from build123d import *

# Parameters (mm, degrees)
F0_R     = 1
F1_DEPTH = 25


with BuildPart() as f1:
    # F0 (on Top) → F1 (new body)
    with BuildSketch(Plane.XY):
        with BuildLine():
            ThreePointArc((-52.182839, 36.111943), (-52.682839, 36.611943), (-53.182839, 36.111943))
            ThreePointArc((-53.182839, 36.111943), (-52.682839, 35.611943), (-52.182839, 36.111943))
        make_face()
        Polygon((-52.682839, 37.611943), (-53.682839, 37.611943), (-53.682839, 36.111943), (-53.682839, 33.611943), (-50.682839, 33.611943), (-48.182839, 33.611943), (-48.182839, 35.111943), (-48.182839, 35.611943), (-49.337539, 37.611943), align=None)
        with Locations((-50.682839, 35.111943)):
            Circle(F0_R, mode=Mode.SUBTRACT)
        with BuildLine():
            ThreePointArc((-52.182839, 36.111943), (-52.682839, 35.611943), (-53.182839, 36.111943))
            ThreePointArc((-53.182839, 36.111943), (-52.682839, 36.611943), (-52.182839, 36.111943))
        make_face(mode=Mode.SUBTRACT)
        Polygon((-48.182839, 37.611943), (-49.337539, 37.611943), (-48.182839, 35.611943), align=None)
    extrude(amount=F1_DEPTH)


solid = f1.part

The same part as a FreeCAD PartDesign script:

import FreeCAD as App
import Part
import Sketcher

V = App.Vector
Q = App.Units.Quantity

doc = App.newDocument("Part")
params = doc.addObject("Spreadsheet::Sheet", "Params")
for row, (alias, value) in enumerate([
    ("sketch1_diameter", "2 mm"),
    ("sketch1_diameter2", "1 mm"),
    ("sketch1_height", "4 mm"),
    ("sketch1_width", "5.5 mm"),
    ("pad1_length", "25 mm"),
], start=1):
    params.set(f"A{row}", alias)
    params.set(f"B{row}", "=" + value)
    params.setAlias(f"B{row}", alias)

body = doc.addObject("PartDesign::Body", "Body")

# Sketch on XY plane
sketch1 = doc.addObject("Sketcher::SketchObject", "Sketch")
body.addObject(sketch1)
sketch1.AttachmentSupport = (doc.XY_Plane, [""])
sketch1.MapMode = "FlatFace"
sketch1.addGeometry([
    Part.LineSegment(V(-53.7, 37.6, 0), V(-53.7, 33.6, 0)),  # 0
    Part.LineSegment(V(-53.7, 33.6, 0), V(-48.2, 33.6, 0)),  # 1
    Part.LineSegment(V(-48.2, 33.6, 0), V(-48.2, 37.6, 0)),  # 2
    Part.LineSegment(V(-48.2, 37.6, 0), V(-53.7, 37.6, 0)),  # 3
    Part.Circle(V(-50.7, 35.1, 0), V(0, 0, 1), 1),  # 4
    Part.Circle(V(-52.7, 36.1, 0), V(0, 0, 1), 0.5),  # 5
], False)
sketch1.addConstraint([
    Sketcher.Constraint("Coincident", 0, 2, 1, 1),
    Sketcher.Constraint("Coincident", 1, 2, 2, 1),
    Sketcher.Constraint("Coincident", 2, 2, 3, 1),
    Sketcher.Constraint("Coincident", 3, 2, 0, 1),
    Sketcher.Constraint("Vertical", 0),
    Sketcher.Constraint("Horizontal", 1),
    Sketcher.Constraint("Vertical", 2),
    Sketcher.Constraint("Horizontal", 3),
    Sketcher.Constraint("Diameter", 4, Q("2 mm")),
    Sketcher.Constraint("Diameter", 5, Q("1 mm")),
    Sketcher.Constraint("DistanceY", 0, 2, 0, 1, Q("4 mm")),
    Sketcher.Constraint("DistanceX", 1, 1, 1, 2, Q("5.5 mm")),
    Sketcher.Constraint("DistanceX", 5, 3, 4, 3, Q("2 mm")),
    Sketcher.Constraint("DistanceY", 4, 3, 5, 3, Q("1 mm")),
    Sketcher.Constraint("DistanceX", 0, 2, 5, 3, Q("1 mm")),
    Sketcher.Constraint("DistanceY", 0, 2, 5, 3, Q("2.5 mm")),
    Sketcher.Constraint("DistanceX", 4, 3, -1, 1, Q("50.682839 mm")),
    Sketcher.Constraint("DistanceY", -1, 1, 4, 3, Q("35.111943 mm")),
])
sketch1.setExpression("Constraints[8]", "Params.sketch1_diameter")
sketch1.setExpression("Constraints[9]", "Params.sketch1_diameter2")
sketch1.setExpression("Constraints[10]", "Params.sketch1_height")
sketch1.setExpression("Constraints[11]", "Params.sketch1_width")
pad1 = doc.addObject("PartDesign::Pad", "Pad")
body.addObject(pad1)
pad1.Profile = sketch1
pad1.setExpression("Length", "Params.pad1_length")

doc.recompute()
